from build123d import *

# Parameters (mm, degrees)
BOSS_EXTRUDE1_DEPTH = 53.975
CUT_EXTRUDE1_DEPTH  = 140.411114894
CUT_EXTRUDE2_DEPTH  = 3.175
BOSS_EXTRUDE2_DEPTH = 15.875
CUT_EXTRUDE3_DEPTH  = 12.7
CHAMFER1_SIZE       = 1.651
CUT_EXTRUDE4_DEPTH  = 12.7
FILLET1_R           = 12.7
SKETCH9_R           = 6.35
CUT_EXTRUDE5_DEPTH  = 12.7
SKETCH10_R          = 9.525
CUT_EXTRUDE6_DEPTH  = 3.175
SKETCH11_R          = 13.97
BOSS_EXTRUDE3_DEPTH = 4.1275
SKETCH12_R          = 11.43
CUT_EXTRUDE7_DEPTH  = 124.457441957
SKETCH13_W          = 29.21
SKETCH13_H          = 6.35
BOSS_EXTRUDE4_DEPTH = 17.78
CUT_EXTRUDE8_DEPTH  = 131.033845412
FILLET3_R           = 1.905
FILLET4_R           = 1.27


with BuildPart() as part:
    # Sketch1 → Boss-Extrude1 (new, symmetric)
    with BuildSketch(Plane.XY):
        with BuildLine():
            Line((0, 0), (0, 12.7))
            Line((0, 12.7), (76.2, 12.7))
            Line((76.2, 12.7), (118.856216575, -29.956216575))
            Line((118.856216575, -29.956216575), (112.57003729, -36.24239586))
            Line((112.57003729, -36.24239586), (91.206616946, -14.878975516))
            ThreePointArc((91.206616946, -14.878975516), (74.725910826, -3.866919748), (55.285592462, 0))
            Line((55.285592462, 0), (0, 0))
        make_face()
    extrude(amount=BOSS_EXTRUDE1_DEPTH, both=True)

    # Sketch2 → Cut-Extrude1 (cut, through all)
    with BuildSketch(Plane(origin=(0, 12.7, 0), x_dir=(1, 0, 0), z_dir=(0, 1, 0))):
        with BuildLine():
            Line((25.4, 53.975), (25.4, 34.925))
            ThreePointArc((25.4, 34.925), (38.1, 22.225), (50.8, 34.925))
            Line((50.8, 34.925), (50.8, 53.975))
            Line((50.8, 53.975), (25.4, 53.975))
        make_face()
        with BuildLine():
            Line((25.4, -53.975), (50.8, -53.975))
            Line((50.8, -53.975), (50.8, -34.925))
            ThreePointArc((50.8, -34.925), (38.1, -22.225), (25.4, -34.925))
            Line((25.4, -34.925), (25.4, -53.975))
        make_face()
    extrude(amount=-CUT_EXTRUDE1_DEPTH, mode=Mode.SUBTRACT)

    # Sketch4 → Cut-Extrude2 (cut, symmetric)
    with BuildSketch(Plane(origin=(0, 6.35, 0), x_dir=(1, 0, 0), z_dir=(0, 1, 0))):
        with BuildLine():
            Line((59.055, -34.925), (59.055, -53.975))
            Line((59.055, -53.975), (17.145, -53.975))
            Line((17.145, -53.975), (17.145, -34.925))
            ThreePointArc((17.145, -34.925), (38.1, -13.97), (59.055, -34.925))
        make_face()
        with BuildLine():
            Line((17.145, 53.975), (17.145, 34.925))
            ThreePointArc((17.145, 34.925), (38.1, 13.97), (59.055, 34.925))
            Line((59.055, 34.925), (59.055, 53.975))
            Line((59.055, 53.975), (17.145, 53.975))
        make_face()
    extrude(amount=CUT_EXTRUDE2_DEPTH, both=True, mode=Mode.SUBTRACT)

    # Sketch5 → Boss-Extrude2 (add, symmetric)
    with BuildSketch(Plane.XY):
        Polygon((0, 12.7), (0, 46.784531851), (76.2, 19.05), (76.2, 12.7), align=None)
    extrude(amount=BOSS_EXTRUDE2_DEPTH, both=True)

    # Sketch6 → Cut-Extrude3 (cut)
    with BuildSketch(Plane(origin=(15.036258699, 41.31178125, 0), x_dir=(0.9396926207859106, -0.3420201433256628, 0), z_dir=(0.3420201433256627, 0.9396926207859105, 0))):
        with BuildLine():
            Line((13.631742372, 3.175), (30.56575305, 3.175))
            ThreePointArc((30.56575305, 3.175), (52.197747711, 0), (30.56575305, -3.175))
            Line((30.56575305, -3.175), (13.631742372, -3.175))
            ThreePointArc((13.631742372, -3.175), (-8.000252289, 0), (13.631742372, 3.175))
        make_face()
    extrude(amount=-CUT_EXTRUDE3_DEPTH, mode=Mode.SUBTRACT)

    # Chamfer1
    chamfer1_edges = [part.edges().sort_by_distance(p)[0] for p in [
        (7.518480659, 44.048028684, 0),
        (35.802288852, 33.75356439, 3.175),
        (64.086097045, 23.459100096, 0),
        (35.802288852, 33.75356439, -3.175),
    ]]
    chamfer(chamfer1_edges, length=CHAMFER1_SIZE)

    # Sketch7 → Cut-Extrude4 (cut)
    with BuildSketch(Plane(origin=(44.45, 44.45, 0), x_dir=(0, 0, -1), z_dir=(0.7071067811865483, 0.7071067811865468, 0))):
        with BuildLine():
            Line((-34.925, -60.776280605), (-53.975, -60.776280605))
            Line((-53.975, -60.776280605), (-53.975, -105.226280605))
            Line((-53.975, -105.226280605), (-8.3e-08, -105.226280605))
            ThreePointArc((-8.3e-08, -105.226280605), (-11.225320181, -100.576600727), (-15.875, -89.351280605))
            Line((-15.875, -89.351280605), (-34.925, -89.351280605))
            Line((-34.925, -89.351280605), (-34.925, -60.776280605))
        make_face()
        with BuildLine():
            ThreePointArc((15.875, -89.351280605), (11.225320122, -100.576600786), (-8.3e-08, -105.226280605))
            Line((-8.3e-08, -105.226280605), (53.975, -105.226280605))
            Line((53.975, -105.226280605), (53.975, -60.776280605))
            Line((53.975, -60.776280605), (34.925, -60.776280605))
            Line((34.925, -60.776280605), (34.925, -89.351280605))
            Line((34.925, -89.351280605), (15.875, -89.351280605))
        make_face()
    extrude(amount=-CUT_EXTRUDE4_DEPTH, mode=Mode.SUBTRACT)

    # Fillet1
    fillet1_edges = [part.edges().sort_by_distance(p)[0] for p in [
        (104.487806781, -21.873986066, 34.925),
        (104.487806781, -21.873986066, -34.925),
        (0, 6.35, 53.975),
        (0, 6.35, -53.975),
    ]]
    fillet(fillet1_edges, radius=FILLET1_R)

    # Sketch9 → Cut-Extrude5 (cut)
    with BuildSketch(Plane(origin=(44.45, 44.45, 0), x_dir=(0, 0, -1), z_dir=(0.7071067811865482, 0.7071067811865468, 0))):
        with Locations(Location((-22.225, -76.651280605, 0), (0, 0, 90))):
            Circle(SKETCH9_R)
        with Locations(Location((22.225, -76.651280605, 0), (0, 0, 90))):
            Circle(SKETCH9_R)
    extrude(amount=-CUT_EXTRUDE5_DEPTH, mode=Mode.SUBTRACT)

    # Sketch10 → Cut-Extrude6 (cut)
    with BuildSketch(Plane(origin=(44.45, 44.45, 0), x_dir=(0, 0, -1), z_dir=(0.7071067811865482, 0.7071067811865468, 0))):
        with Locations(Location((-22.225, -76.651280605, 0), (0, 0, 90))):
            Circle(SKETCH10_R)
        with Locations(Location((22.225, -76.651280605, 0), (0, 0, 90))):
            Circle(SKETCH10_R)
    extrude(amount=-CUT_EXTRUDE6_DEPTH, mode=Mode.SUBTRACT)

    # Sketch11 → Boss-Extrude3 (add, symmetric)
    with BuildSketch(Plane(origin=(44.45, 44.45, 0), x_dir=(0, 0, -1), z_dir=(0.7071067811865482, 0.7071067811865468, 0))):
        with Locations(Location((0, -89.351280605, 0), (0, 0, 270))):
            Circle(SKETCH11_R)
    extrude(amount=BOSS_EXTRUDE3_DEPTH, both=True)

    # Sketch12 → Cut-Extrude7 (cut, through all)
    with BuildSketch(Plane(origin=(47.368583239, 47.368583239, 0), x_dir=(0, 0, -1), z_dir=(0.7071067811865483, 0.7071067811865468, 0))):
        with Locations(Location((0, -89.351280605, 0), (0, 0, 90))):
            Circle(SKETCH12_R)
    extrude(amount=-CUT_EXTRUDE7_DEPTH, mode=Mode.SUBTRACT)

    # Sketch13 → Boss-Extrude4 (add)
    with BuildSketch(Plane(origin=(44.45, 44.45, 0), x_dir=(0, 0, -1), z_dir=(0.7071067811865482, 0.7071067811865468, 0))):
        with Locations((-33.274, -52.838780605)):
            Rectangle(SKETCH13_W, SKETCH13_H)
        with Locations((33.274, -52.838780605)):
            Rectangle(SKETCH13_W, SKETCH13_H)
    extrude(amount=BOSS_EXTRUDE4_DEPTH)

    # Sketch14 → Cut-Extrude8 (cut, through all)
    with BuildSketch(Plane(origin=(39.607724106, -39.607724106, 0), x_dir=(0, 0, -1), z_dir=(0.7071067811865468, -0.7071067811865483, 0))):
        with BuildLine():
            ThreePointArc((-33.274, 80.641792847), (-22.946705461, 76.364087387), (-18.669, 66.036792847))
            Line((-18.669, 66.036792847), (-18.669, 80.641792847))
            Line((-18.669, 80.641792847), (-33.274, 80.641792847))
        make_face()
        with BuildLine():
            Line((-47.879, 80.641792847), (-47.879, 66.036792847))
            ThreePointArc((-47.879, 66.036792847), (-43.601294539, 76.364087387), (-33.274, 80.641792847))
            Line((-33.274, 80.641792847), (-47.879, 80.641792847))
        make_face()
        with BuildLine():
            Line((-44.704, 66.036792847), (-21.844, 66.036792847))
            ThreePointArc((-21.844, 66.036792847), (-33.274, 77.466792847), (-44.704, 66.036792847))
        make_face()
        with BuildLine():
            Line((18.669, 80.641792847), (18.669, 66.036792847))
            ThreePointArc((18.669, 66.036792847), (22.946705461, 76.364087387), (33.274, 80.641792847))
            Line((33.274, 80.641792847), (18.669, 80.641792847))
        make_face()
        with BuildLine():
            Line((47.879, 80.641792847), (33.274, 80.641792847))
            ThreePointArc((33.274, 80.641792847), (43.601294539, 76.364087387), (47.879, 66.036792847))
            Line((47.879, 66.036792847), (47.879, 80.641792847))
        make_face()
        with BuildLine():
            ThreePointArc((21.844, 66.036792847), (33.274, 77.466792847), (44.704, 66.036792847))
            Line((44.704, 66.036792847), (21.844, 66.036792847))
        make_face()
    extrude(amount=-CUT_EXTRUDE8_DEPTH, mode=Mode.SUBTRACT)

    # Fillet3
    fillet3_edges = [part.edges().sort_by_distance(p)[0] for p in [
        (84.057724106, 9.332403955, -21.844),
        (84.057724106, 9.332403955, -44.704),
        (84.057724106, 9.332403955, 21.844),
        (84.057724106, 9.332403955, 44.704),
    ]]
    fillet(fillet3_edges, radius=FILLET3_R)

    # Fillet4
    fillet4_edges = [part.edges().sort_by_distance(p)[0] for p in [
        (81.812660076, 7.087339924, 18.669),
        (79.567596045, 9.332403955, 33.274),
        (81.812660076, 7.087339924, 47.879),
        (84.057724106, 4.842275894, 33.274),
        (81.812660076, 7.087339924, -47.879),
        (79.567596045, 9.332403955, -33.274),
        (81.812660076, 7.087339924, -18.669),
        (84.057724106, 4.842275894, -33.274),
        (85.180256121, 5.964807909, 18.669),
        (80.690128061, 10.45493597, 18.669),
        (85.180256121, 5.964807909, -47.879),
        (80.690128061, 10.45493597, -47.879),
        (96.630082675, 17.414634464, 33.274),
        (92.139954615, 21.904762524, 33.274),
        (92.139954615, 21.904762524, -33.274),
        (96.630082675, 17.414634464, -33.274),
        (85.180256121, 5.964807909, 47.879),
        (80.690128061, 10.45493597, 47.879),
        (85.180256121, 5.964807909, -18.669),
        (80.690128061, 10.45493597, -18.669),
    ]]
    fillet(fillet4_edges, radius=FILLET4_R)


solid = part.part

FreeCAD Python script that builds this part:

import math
import FreeCAD as App
import Part
import Sketcher

V = App.Vector
Q = App.Units.Quantity


def edges_at(feature, points):
    """Names of the edges that pass closest to the given points."""
    edges = feature.Shape.Edges
    near = lambda p: min(range(len(edges)), key=lambda i: edges[i].distToShape(Part.Vertex(*p))[0])
    return sorted({f"Edge{near(p) + 1}" for p in points})

doc = App.newDocument("Part")
body = doc.addObject("PartDesign::Body", "Body")

# Sketch on XY plane
sketch1 = body.newObject("Sketcher::SketchObject", "Sketch")
sketch1.AttachmentSupport = (doc.getObject("XY_Plane"), [""])
sketch1.MapMode = "FlatFace"
sketch1.addGeometry([
    Part.LineSegment(V(0, 13, 0), V(0, 0, 0)),  # 0
    Part.LineSegment(V(0, 0, 0), V(55, 0, 0)),  # 1
    Part.ArcOfCircle(Part.Circle(V(55, -51, 0), V(0, 0, 1), 51), math.radians(45), math.radians(90)),  # 2
    Part.LineSegment(V(91, -15, 0), V(113, -36, 0)),  # 3
    Part.LineSegment(V(113, -36, 0), V(119, -30, 0)),  # 4
    Part.LineSegment(V(119, -30, 0), V(76, 13, 0)),  # 5
    Part.LineSegment(V(76, 13, 0), V(0, 13, 0)),  # 6
], False)
sketch1.addConstraint([
    Sketcher.Constraint("Coincident", 0, 2, 1, 1),
    Sketcher.Constraint("Tangent", 1, 2, 2, 2),
    Sketcher.Constraint("Tangent", 2, 1, 3, 1),
    Sketcher.Constraint("Coincident", 3, 2, 4, 1),
    Sketcher.Constraint("Coincident", 4, 2, 5, 1),
    Sketcher.Constraint("Coincident", 5, 2, 6, 1),
    Sketcher.Constraint("Coincident", 6, 2, 0, 1),
    Sketcher.Constraint("Vertical", 0),
    Sketcher.Constraint("Horizontal", 1),
    Sketcher.Constraint("Horizontal", 6),
    Sketcher.Constraint("Coincident", 0, 2, -1, 1),
    Sketcher.Constraint("Perpendicular", 3, 4),
    Sketcher.Constraint("Perpendicular", 4, 5),
    Sketcher.Constraint("Radius", 2, Q("2 in")),
    Sketcher.Constraint("DistanceX", 6, 2, 6, 1, Q("3 in")),
    Sketcher.Constraint("DistanceY", 0, 2, 0, 1, Q("0.5 in")),
    Sketcher.Constraint("Angle", 3, Q("-45 deg")),
    Sketcher.Constraint("Distance", 4, Q("0.35 in")),
    Sketcher.Constraint("Distance", 5, Q("2.375 in")),
])
pad1 = body.newObject("PartDesign::Pad", "Pad")
pad1.Profile = sketch1
pad1.Length = Q("4.25 in")
pad1.Midplane = True

# Sketch on XZ plane
sketch2 = body.newObject("Sketcher::SketchObject", "Sketch001")
sketch2.AttachmentSupport = (doc.getObject("XZ_Plane"), [""])
sketch2.MapMode = "FlatFace"
sketch2.AttachmentOffset = App.Placement(V(0, 0, -0.5 * 25.4), App.Rotation())
sketch2.addGeometry([
    Part.LineSegment(V(25, -54, 0), V(25, -35, 0)),  # 0
    Part.ArcOfCircle(Part.Circle(V(38, -35, 0), V(0, 0, 1), 13), math.radians(0), math.radians(180)),  # 1
    Part.LineSegment(V(51, -35, 0), V(51, -54, 0)),  # 2
    Part.LineSegment(V(51, -54, 0), V(25, -54, 0)),  # 3
    Part.LineSegment(V(25, 54, 0), V(51, 54, 0)),  # 4
    Part.LineSegment(V(51, 54, 0), V(51, 35, 0)),  # 5
    Part.ArcOfCircle(Part.Circle(V(38, 35, 0), V(0, 0, 1), 13), math.radians(180), math.radians(360)),  # 6
    Part.LineSegment(V(25, 35, 0), V(25, 54, 0)),  # 7
], False)
sketch2.addConstraint([
    Sketcher.Constraint("Tangent", 0, 2, 1, 2),
    Sketcher.Constraint("Tangent", 1, 1, 2, 1),
    Sketcher.Constraint("Coincident", 2, 2, 3, 1),
    Sketcher.Constraint("Coincident", 3, 2, 0, 1),
    Sketcher.Constraint("Coincident", 4, 2, 5, 1),
    Sketcher.Constraint("Tangent", 5, 2, 6, 2),
    Sketcher.Constraint("Tangent", 6, 1, 7, 1),
    Sketcher.Constraint("Coincident", 7, 2, 4, 1),
    Sketcher.Constraint("Vertical", 0),
    Sketcher.Constraint("Vertical", 2),
    Sketcher.Constraint("Horizontal", 3),
    Sketcher.Constraint("Horizontal", 4),
    Sketcher.Constraint("Vertical", 5),
    Sketcher.Constraint("Vertical", 7),
    Sketcher.Constraint("Equal", 1, 6),
    Sketcher.Constraint("Symmetric", 1, 3, 6, 3, -1),
    Sketcher.Constraint("Equal", 2, 5),
    Sketcher.Constraint("Radius", 1, Q("0.5 in")),
    Sketcher.Constraint("DistanceX", -1, 1, 0, 2, Q("1 in")),
    Sketcher.Constraint("DistanceY", 0, 1, 0, 2, Q("0.75 in")),
    Sketcher.Constraint("DistanceY", 2, 2, 6, 3, Q("3.5 in")),
])
pocket1 = body.newObject("PartDesign::Pocket", "Pocket")
pocket1.Profile = sketch2
pocket1.Type = "ThroughAll"
pocket1.Reversed = True

# Sketch on XZ plane
sketch3 = body.newObject("Sketcher::SketchObject", "Sketch002")
sketch3.AttachmentSupport = (doc.getObject("XZ_Plane"), [""])
sketch3.MapMode = "FlatFace"
sketch3.AttachmentOffset = App.Placement(V(0, 0, -0.25 * 25.4), App.Rotation())
sketch3.addGeometry([
    Part.LineSegment(V(59, 54, 0), V(59, 35, 0)),  # 0
    Part.ArcOfCircle(Part.Circle(V(38, 35, 0), V(0, 0, 1), 21), math.radians(180), math.radians(360)),  # 1
    Part.LineSegment(V(17, 35, 0), V(17, 54, 0)),  # 2
    Part.LineSegment(V(17, 54, 0), V(59, 54, 0)),  # 3
    Part.LineSegment(V(17, -54, 0), V(17, -35, 0)),  # 4
    Part.ArcOfCircle(Part.Circle(V(38, -35, 0), V(0, 0, 1), 21), math.radians(0), math.radians(180)),  # 5
    Part.LineSegment(V(59, -35, 0), V(59, -54, 0)),  # 6
    Part.LineSegment(V(59, -54, 0), V(17, -54, 0)),  # 7
], False)
sketch3.addConstraint([
    Sketcher.Constraint("Tangent", 0, 2, 1, 2),
    Sketcher.Constraint("Tangent", 1, 1, 2, 1),
    Sketcher.Constraint("Coincident", 2, 2, 3, 1),
    Sketcher.Constraint("Coincident", 3, 2, 0, 1),
    Sketcher.Constraint("Tangent", 4, 2, 5, 2),
    Sketcher.Constraint("Tangent", 5, 1, 6, 1),
    Sketcher.Constraint("Coincident", 6, 2, 7, 1),
    Sketcher.Constraint("Coincident", 7, 2, 4, 1),
    Sketcher.Constraint("Vertical", 0),
    Sketcher.Constraint("Vertical", 2),
    Sketcher.Constraint("Horizontal", 3),
    Sketcher.Constraint("Vertical", 4),
    Sketcher.Constraint("Vertical", 6),
    Sketcher.Constraint("Horizontal", 7),
    Sketcher.Constraint("Equal", 1, 5),
    Sketcher.Constraint("Symmetric", 1, 3, 5, 3, -1),
    Sketcher.Constraint("Equal", 2, 4),
    Sketcher.Constraint("Radius", 1, Q("0.825 in")),
    Sketcher.Constraint("DistanceY", 0, 2, 0, 1, Q("0.75 in")),
    Sketcher.Constraint("DistanceX", -1, 1, 1, 3, Q("1.5 in")),
    Sketcher.Constraint("DistanceY", 5, 3, 2, 2, Q("3.5 in")),
])
pocket2 = body.newObject("PartDesign::Pocket", "Pocket001")
pocket2.Profile = sketch3
pocket2.Length = Q("0.25 in")
pocket2.Midplane = True

# Sketch on XY plane
sketch4 = body.newObject("Sketcher::SketchObject", "Sketch003")
sketch4.AttachmentSupport = (doc.getObject("XY_Plane"), [""])
sketch4.MapMode = "FlatFace"
sketch4.addGeometry([
    Part.LineSegment(V(0, 47, 0), V(0, 13, 0)),
    Part.LineSegment(V(0, 13, 0), V(76, 13, 0)),
    Part.LineSegment(V(76, 13, 0), V(76, 19, 0)),
    Part.LineSegment(V(76, 19, 0), V(0, 47, 0)),
], False)
sketch4.addConstraint([
    Sketcher.Constraint("Coincident", 0, 2, 1, 1),
    Sketcher.Constraint("Coincident", 1, 2, 2, 1),
    Sketcher.Constraint("Coincident", 2, 2, 3, 1),
    Sketcher.Constraint("Coincident", 3, 2, 0, 1),
    Sketcher.Constraint("Vertical", 0),
    Sketcher.Constraint("Horizontal", 1),
    Sketcher.Constraint("Vertical", 2),
    Sketcher.Constraint("PointOnObject", 0, 2, -2),
    Sketcher.Constraint("DistanceX", 1, 1, 1, 2, Q("3 in")),
    Sketcher.Constraint("Angle", 3, Q("160 deg")),
    Sketcher.Constraint("DistanceY", 2, 1, 2, 2, Q("0.25 in")),
    Sketcher.Constraint("DistanceY", -1, 1, 0, 2, Q("0.5 in")),
])
pad2 = body.newObject("PartDesign::Pad", "Pad001")
pad2.Profile = sketch4
pad2.Length = Q("1.25 in")
pad2.Midplane = True

# Sketch on an angled plane
sketch5 = body.newObject("Sketcher::SketchObject", "Sketch004")
sketch5.Placement = App.Placement(V(15.036259, 41.311781, 0), App.Rotation(V(0.939692621, -0.342020143, 0), V(0, 0, -1), V(0.342020143, 0.939692621, 0), "ZXY"))
sketch5.addGeometry([
    Part.LineSegment(V(31, 3, 0), V(14, 3, 0)),
    Part.ArcOfCircle(Part.Circle(V(3, 0, 0), V(0, 0, 1), 11), math.radians(17), math.radians(343)),
    Part.LineSegment(V(14, -3, 0), V(31, -3, 0)),
    Part.ArcOfCircle(Part.Circle(V(41, 0, 0), V(0, 0, 1), 11), math.radians(-163), math.radians(163)),
], False)
sketch5.addConstraint([
    Sketcher.Constraint("Coincident", 0, 2, 1, 1),
    Sketcher.Constraint("Coincident", 1, 2, 2, 1),
    Sketcher.Constraint("Coincident", 2, 2, 3, 1),
    Sketcher.Constraint("Coincident", 3, 2, 0, 1),
    Sketcher.Constraint("Horizontal", 0),
    Sketcher.Constraint("Horizontal", 2),
    Sketcher.Constraint("Equal", 1, 3),
    Sketcher.Constraint("Symmetric", 0, 2, 1, 2, -1),
    Sketcher.Constraint("PointOnObject", 3, 3, -1),
    Sketcher.Constraint("Radius", 1, Q("0.435 in")),
    Sketcher.Constraint("DistanceX", 1, 3, 3, 3, Q("1.5 in")),
    Sketcher.Constraint("DistanceY", 1, 2, 0, 2, Q("0.25 in")),
    Sketcher.Constraint("DistanceX", -1, 1, 1, 3, Q("3.048748 mm")),
])
pocket3 = body.newObject("PartDesign::Pocket", "Pocket002")
pocket3.Profile = sketch5
pocket3.Length = Q("0.5 in")
doc.recompute()

chamfer = body.newObject("PartDesign::Chamfer", "Chamfer")
chamfer.Base = (pocket3, edges_at(pocket3, [
    (7.518, 44.048, 0),
    (35.802, 33.754, 3.175),
    (64.086, 23.459, 0),
    (35.802, 33.754, -3.175),
]))
chamfer.Size = Q("0.065 in")

# Sketch on an angled plane
sketch6 = body.newObject("Sketcher::SketchObject", "Sketch005")
sketch6.Placement = App.Placement(V(44.45, 44.45, 0), App.Rotation(V(0, 0, -1), V(-0.707106781, 0.707106781, 0), V(0.707106781, 0.707106781, 0), "ZXY"))
sketch6.addGeometry([
    Part.LineSegment(V(-35, -61, 0), V(-54, -61, 0)),  # 0
    Part.LineSegment(V(-54, -61, 0), V(-54, -105, 0)),  # 1
    Part.LineSegment(V(-54, -105, 0), V(0, -105, 0)),  # 2
    Part.ArcOfCircle(Part.Circle(V(0, -89, 0), V(0, 0, 1), 16), math.radians(180), math.radians(270)),  # 3
    Part.LineSegment(V(-16, -89, 0), V(-35, -89, 0)),  # 4
    Part.LineSegment(V(-35, -89, 0), V(-35, -61, 0)),  # 5
    Part.ArcOfCircle(Part.Circle(V(0, -89, 0), V(0, 0, 1), 16), math.radians(-90), math.radians(0)),  # 6
    Part.LineSegment(V(0, -105, 0), V(54, -105, 0)),  # 7
    Part.LineSegment(V(54, -105, 0), V(54, -61, 0)),  # 8
    Part.LineSegment(V(54, -61, 0), V(35, -61, 0)),  # 9
    Part.LineSegment(V(35, -61, 0), V(35, -89, 0)),  # 10
    Part.LineSegment(V(35, -89, 0), V(16, -89, 0)),  # 11
], False)
sketch6.addConstraint([
    Sketcher.Constraint("Coincident", 0, 2, 1, 1),
    Sketcher.Constraint("Coincident", 1, 2, 2, 1),
    Sketcher.Constraint("Tangent", 2, 2, 3, 2),
    Sketcher.Constraint("Coincident", 3, 1, 4, 1),
    Sketcher.Constraint("Coincident", 4, 2, 5, 1),
    Sketcher.Constraint("Coincident", 5, 2, 0, 1),
    Sketcher.Constraint("Tangent", 6, 1, 7, 1),
    Sketcher.Constraint("Coincident", 7, 2, 8, 1),
    Sketcher.Constraint("Coincident", 8, 2, 9, 1),
    Sketcher.Constraint("Coincident", 9, 2, 10, 1),
    Sketcher.Constraint("Coincident", 10, 2, 11, 1),
    Sketcher.Constraint("Coincident", 11, 2, 6, 2),
    Sketcher.Constraint("Horizontal", 0),
    Sketcher.Constraint("Vertical", 1),
    Sketcher.Constraint("Horizontal", 2),
    Sketcher.Constraint("Horizontal", 4),
    Sketcher.Constraint("Vertical", 5),
    Sketcher.Constraint("Horizontal", 7),
    Sketcher.Constraint("Vertical", 8),
    Sketcher.Constraint("Horizontal", 9),
    Sketcher.Constraint("Vertical", 10),
    Sketcher.Constraint("Horizontal", 11),
    Sketcher.Constraint("Coincident", 6, 3, 3, 3),
    Sketcher.Constraint("Equal", 3, 6),
    Sketcher.Constraint("Symmetric", 0, 2, 8, 2, -2),
    Sketcher.Constraint("Symmetric", 4, 2, 10, 2, -2),
    Sketcher.Constraint("PointOnObject", 3, 3, -2),
    Sketcher.Constraint("Horizontal", 6, 3, 3, 1),
    Sketcher.Constraint("Equal", 0, 4),
    Sketcher.Constraint("Radius", 3, Q("0.625 in")),
    Sketcher.Constraint("DistanceX", 0, 2, 0, 1, Q("0.75 in")),
    Sketcher.Constraint("DistanceY", 1, 2, 1, 1, Q("1.75 in")),
    Sketcher.Constraint("DistanceY", 3, 3, -1, 1, Q("89.351281 mm")),
])
pocket4 = body.newObject("PartDesign::Pocket", "Pocket003")
pocket4.Profile = sketch6
pocket4.Length = Q("0.5 in")
doc.recompute()

fillet = body.newObject("PartDesign::Fillet", "Fillet")
fillet.Base = (pocket4, edges_at(pocket4, [
    (104.488, -21.874, 34.925),
    (104.488, -21.874, -34.925),
    (0, 6.35, 53.975),
    (0, 6.35, -53.975),
]))
fillet.Radius = Q("0.5 in")

# Sketch on an angled plane
sketch7 = body.newObject("Sketcher::SketchObject", "Sketch006")
sketch7.Placement = App.Placement(V(44.45, 44.45, 0), App.Rotation(V(0, 0, -1), V(-0.707106781, 0.707106781, 0), V(0.707106781, 0.707106781, 0), "ZXY"))
sketch7.addGeometry([
    Part.Circle(V(-22, -77, 0), V(0, 0, 1), 6),
    Part.Circle(V(22, -77, 0), V(0, 0, 1), 6),
], False)
sketch7.addConstraint([
    Sketcher.Constraint("Equal", 0, 1),
    Sketcher.Constraint("Symmetric", 0, 3, 1, 3, -2),
    Sketcher.Constraint("Diameter", 0, Q("0.5 in")),
    Sketcher.Constraint("DistanceX", 0, 3, 1, 3, Q("1.75 in")),
    Sketcher.Constraint("DistanceY", 0, 3, -1, 1, Q("76.651281 mm")),
])
pocket5 = body.newObject("PartDesign::Pocket", "Pocket004")
pocket5.Profile = sketch7
pocket5.Length = Q("0.5 in")

# Sketch on an angled plane
sketch8 = body.newObject("Sketcher::SketchObject", "Sketch007")
sketch8.Placement = App.Placement(V(44.45, 44.45, 0), App.Rotation(V(0, 0, -1), V(-0.707106781, 0.707106781, 0), V(0.707106781, 0.707106781, 0), "ZXY"))
sketch8.addGeometry([
    Part.Circle(V(-22, -77, 0), V(0, 0, 1), 10),
    Part.Circle(V(22, -77, 0), V(0, 0, 1), 10),
], False)
sketch8.addConstraint([
    Sketcher.Constraint("Equal", 0, 1),
    Sketcher.Constraint("Symmetric", 0, 3, 1, 3, -2),
    Sketcher.Constraint("Diameter", 0, Q("0.75 in")),
    Sketcher.Constraint("DistanceX", 0, 3, 1, 3, Q("1.75 in")),
    Sketcher.Constraint("DistanceY", 0, 3, -1, 1, Q("76.651281 mm")),
])
pocket6 = body.newObject("PartDesign::Pocket", "Pocket005")
pocket6.Profile = sketch8
pocket6.Length = Q("0.125 in")

# Sketch on an angled plane
sketch9 = body.newObject("Sketcher::SketchObject", "Sketch008")
sketch9.Placement = App.Placement(V(44.45, 44.45, 0), App.Rotation(V(0, 0, -1), V(-0.707106781, 0.707106781, 0), V(0.707106781, 0.707106781, 0), "ZXY"))
sketch9.addGeometry(Part.Circle(V(0, -89, 0), V(0, 0, 1), 14), False)
sketch9.addConstraint([
    Sketcher.Constraint("PointOnObject", 0, 3, -2),
    Sketcher.Constraint("Diameter", 0, Q("1.1 in")),
    Sketcher.Constraint("DistanceY", 0, 3, -1, 1, Q("89.351281 mm")),
])
pad3 = body.newObject("PartDesign::Pad", "Pad002")
pad3.Profile = sketch9
pad3.Length = Q("0.325 in")
pad3.Midplane = True

# Sketch on an angled plane
sketch10 = body.newObject("Sketcher::SketchObject", "Sketch009")
sketch10.Placement = App.Placement(V(47.368583, 47.368583, 0), App.Rotation(V(0, 0, -1), V(-0.707106781, 0.707106781, 0), V(0.707106781, 0.707106781, 0), "ZXY"))
sketch10.addGeometry(Part.Circle(V(0, -89, 0), V(0, 0, 1), 11), False)
sketch10.addConstraint([
    Sketcher.Constraint("PointOnObject", 0, 3, -2),
    Sketcher.Constraint("Diameter", 0, Q("0.9 in")),
    Sketcher.Constraint("DistanceY", 0, 3, -1, 1, Q("89.351281 mm")),
])
pocket7 = body.newObject("PartDesign::Pocket", "Pocket006")
pocket7.Profile = sketch10
pocket7.Type = "ThroughAll"

# Sketch on an angled plane
sketch11 = body.newObject("Sketcher::SketchObject", "Sketch010")
sketch11.Placement = App.Placement(V(44.45, 44.45, 0), App.Rotation(V(0, 0, -1), V(-0.707106781, 0.707106781, 0), V(0.707106781, 0.707106781, 0), "ZXY"))
sketch11.addGeometry([
    Part.LineSegment(V(-48, -50, 0), V(-48, -56, 0)),  # 0
    Part.LineSegment(V(-48, -56, 0), V(-19, -56, 0)),  # 1
    Part.LineSegment(V(-19, -56, 0), V(-19, -50, 0)),  # 2
    Part.LineSegment(V(-19, -50, 0), V(-48, -50, 0)),  # 3
    Part.LineSegment(V(19, -50, 0), V(19, -56, 0)),  # 4
    Part.LineSegment(V(19, -56, 0), V(48, -56, 0)),  # 5
    Part.LineSegment(V(48, -56, 0), V(48, -50, 0)),  # 6
    Part.LineSegment(V(48, -50, 0), V(19, -50, 0)),  # 7
], False)
sketch11.addConstraint([
    Sketcher.Constraint("Coincident", 0, 2, 1, 1),
    Sketcher.Constraint("Coincident", 1, 2, 2, 1),
    Sketcher.Constraint("Coincident", 2, 2, 3, 1),
    Sketcher.Constraint("Coincident", 3, 2, 0, 1),
    Sketcher.Constraint("Coincident", 4, 2, 5, 1),
    Sketcher.Constraint("Coincident", 5, 2, 6, 1),
    Sketcher.Constraint("Coincident", 6, 2, 7, 1),
    Sketcher.Constraint("Coincident", 7, 2, 4, 1),
    Sketcher.Constraint("Vertical", 0),
    Sketcher.Constraint("Horizontal", 1),
    Sketcher.Constraint("Vertical", 2),
    Sketcher.Constraint("Horizontal", 3),
    Sketcher.Constraint("Vertical", 4),
    Sketcher.Constraint("Horizontal", 5),
    Sketcher.Constraint("Vertical", 6),
    Sketcher.Constraint("Horizontal", 7),
    Sketcher.Constraint("Symmetric", 1, 2, 4, 2, -2),
    Sketcher.Constraint("Symmetric", 3, 2, 6, 2, -2),
    Sketcher.Constraint("DistanceX", 1, 1, 1, 2, Q("1.15 in")),
    Sketcher.Constraint("DistanceY", 0, 2, 0, 1, Q("0.25 in")),
    Sketcher.Constraint("DistanceX", 1, 2, 4, 2, Q("1.47 in")),
    Sketcher.Constraint("DistanceY", 0, 2, -1, 1, Q("56.013781 mm")),
])
pad4 = body.newObject("PartDesign::Pad", "Pad003")
pad4.Profile = sketch11
pad4.Length = Q("0.7 in")

# Sketch on an angled plane
sketch12 = body.newObject("Sketcher::SketchObject", "Sketch011")
sketch12.Placement = App.Placement(V(39.607724, -39.607724, 0), App.Rotation(V(0, 0, -1), V(0.707106781, 0.707106781, 0), V(0.707106781, -0.707106781, 0), "ZXY"))
sketch12.addGeometry([
    Part.ArcOfCircle(Part.Circle(V(-33, 66, 0), V(0, 0, 1), 15), math.radians(0), math.radians(90)),  # 0
    Part.LineSegment(V(-19, 66, 0), V(-19, 81, 0)),  # 1
    Part.LineSegment(V(-19, 81, 0), V(-33, 81, 0)),  # 2
    Part.LineSegment(V(-48, 81, 0), V(-48, 66, 0)),  # 3
    Part.ArcOfCircle(Part.Circle(V(-33, 66, 0), V(0, 0, 1), 15), math.radians(90), math.radians(180)),  # 4
    Part.LineSegment(V(-33, 81, 0), V(-48, 81, 0)),  # 5
    Part.LineSegment(V(-45, 66, 0), V(-22, 66, 0)),  # 6
    Part.ArcOfCircle(Part.Circle(V(-33, 66, 0), V(0, 0, 1), 11), math.radians(0), math.radians(180)),  # 7
    Part.LineSegment(V(19, 81, 0), V(19, 66, 0)),  # 8
    Part.ArcOfCircle(Part.Circle(V(33, 66, 0), V(0, 0, 1), 15), math.radians(90), math.radians(180)),  # 9
    Part.LineSegment(V(33, 81, 0), V(19, 81, 0)),  # 10
    Part.LineSegment(V(48, 81, 0), V(33, 81, 0)),  # 11
    Part.ArcOfCircle(Part.Circle(V(33, 66, 0), V(0, 0, 1), 15), math.radians(0), math.radians(90)),  # 12
    Part.LineSegment(V(48, 66, 0), V(48, 81, 0)),  # 13
    Part.ArcOfCircle(Part.Circle(V(33, 66, 0), V(0, 0, 1), 11), math.radians(0), math.radians(180)),  # 14
    Part.LineSegment(V(22, 66, 0), V(45, 66, 0)),  # 15
], False)
sketch12.addConstraint([
    Sketcher.Constraint("Tangent", 0, 1, 1, 1),
    Sketcher.Constraint("Coincident", 1, 2, 2, 1),
    Sketcher.Constraint("Tangent", 2, 2, 0, 2),
    Sketcher.Constraint("Tangent", 3, 2, 4, 2),
    Sketcher.Constraint("Tangent", 4, 1, 5, 1),
    Sketcher.Constraint("Coincident", 5, 2, 3, 1),
    Sketcher.Constraint("Coincident", 6, 1, 7, 2),
    Sketcher.Constraint("Coincident", 7, 1, 6, 2),
    Sketcher.Constraint("Tangent", 8, 2, 9, 2),
    Sketcher.Constraint("Tangent", 9, 1, 10, 1),
    Sketcher.Constraint("Coincident", 10, 2, 8, 1),
    Sketcher.Constraint("Tangent", 11, 2, 12, 2),
    Sketcher.Constraint("Tangent", 12, 1, 13, 1),
    Sketcher.Constraint("Coincident", 13, 2, 11, 1),
    Sketcher.Constraint("Coincident", 14, 1, 15, 2),
    Sketcher.Constraint("Coincident", 15, 1, 14, 2),
    Sketcher.Constraint("Vertical", 1),
    Sketcher.Constraint("Horizontal", 2),
    Sketcher.Constraint("Vertical", 3),
    Sketcher.Constraint("Horizontal", 5),
    Sketcher.Constraint("Horizontal", 6),
    Sketcher.Constraint("Vertical", 8),
    Sketcher.Constraint("Horizontal", 10),
    Sketcher.Constraint("Horizontal", 11),
    Sketcher.Constraint("Vertical", 13),
    Sketcher.Constraint("Horizontal", 15),
    Sketcher.Constraint("Coincident", 4, 3, 0, 3),
    Sketcher.Constraint("Coincident", 7, 3, 0, 3),
    Sketcher.Constraint("Coincident", 12, 3, 9, 3),
    Sketcher.Constraint("Coincident", 14, 3, 9, 3),
    Sketcher.Constraint("Equal", 0, 4),
    Sketcher.Constraint("Equal", 4, 9),
    Sketcher.Constraint("Equal", 9, 12),
    Sketcher.Constraint("Equal", 7, 14),
    Sketcher.Constraint("Symmetric", 0, 3, 9, 3, -2),
    Sketcher.Constraint("Horizontal", 3, 2, 6, 1),
    Sketcher.Constraint("Horizontal", 12, 1, 14, 1),
    Sketcher.Constraint("Radius", 7, Q("0.45 in")),
    Sketcher.Constraint("Radius", 0, Q("0.575 in")),
    Sketcher.Constraint("DistanceX", 0, 3, -1, 1, Q("1.31 in")),
    Sketcher.Constraint("DistanceY", -1, 1, 0, 3, Q("66.036793 mm")),
])
pocket8 = body.newObject("PartDesign::Pocket", "Pocket007")
pocket8.Profile = sketch12
pocket8.Type = "ThroughAll"
doc.recompute()

fillet2 = body.newObject("PartDesign::Fillet", "Fillet001")
fillet2.Base = (pocket8, edges_at(pocket8, [
    (84.058, 9.332, -21.844),
    (84.058, 9.332, -44.704),
    (84.058, 9.332, 21.844),
    (84.058, 9.332, 44.704),
]))
fillet2.Radius = Q("0.075 in")
doc.recompute()

fillet3 = body.newObject("PartDesign::Fillet", "Fillet002")
fillet3.Base = (fillet2, edges_at(fillet2, [
    (81.813, 7.087, 18.669),
    (79.568, 9.332, 33.274),
    (81.813, 7.087, 47.879),
    (84.058, 4.842, 33.274),
    (81.813, 7.087, -47.879),
    (79.568, 9.332, -33.274),
    (81.813, 7.087, -18.669),
    (84.058, 4.842, -33.274),
    (85.18, 5.965, 18.669),
    (80.69, 10.455, 18.669),
    (85.18, 5.965, -47.879),
    (80.69, 10.455, -47.879),
    (93.605, 14.39, 22.947),
    (89.115, 18.88, 22.947),
    (89.115, 18.88, -43.601),
    (93.605, 14.39, -43.601),
    (85.18, 5.965, 47.879),
    (80.69, 10.455, 47.879),
    (85.18, 5.965, -18.669),
    (80.69, 10.455, -18.669),
]))
fillet3.Radius = Q("0.05 in")

doc.recompute()
